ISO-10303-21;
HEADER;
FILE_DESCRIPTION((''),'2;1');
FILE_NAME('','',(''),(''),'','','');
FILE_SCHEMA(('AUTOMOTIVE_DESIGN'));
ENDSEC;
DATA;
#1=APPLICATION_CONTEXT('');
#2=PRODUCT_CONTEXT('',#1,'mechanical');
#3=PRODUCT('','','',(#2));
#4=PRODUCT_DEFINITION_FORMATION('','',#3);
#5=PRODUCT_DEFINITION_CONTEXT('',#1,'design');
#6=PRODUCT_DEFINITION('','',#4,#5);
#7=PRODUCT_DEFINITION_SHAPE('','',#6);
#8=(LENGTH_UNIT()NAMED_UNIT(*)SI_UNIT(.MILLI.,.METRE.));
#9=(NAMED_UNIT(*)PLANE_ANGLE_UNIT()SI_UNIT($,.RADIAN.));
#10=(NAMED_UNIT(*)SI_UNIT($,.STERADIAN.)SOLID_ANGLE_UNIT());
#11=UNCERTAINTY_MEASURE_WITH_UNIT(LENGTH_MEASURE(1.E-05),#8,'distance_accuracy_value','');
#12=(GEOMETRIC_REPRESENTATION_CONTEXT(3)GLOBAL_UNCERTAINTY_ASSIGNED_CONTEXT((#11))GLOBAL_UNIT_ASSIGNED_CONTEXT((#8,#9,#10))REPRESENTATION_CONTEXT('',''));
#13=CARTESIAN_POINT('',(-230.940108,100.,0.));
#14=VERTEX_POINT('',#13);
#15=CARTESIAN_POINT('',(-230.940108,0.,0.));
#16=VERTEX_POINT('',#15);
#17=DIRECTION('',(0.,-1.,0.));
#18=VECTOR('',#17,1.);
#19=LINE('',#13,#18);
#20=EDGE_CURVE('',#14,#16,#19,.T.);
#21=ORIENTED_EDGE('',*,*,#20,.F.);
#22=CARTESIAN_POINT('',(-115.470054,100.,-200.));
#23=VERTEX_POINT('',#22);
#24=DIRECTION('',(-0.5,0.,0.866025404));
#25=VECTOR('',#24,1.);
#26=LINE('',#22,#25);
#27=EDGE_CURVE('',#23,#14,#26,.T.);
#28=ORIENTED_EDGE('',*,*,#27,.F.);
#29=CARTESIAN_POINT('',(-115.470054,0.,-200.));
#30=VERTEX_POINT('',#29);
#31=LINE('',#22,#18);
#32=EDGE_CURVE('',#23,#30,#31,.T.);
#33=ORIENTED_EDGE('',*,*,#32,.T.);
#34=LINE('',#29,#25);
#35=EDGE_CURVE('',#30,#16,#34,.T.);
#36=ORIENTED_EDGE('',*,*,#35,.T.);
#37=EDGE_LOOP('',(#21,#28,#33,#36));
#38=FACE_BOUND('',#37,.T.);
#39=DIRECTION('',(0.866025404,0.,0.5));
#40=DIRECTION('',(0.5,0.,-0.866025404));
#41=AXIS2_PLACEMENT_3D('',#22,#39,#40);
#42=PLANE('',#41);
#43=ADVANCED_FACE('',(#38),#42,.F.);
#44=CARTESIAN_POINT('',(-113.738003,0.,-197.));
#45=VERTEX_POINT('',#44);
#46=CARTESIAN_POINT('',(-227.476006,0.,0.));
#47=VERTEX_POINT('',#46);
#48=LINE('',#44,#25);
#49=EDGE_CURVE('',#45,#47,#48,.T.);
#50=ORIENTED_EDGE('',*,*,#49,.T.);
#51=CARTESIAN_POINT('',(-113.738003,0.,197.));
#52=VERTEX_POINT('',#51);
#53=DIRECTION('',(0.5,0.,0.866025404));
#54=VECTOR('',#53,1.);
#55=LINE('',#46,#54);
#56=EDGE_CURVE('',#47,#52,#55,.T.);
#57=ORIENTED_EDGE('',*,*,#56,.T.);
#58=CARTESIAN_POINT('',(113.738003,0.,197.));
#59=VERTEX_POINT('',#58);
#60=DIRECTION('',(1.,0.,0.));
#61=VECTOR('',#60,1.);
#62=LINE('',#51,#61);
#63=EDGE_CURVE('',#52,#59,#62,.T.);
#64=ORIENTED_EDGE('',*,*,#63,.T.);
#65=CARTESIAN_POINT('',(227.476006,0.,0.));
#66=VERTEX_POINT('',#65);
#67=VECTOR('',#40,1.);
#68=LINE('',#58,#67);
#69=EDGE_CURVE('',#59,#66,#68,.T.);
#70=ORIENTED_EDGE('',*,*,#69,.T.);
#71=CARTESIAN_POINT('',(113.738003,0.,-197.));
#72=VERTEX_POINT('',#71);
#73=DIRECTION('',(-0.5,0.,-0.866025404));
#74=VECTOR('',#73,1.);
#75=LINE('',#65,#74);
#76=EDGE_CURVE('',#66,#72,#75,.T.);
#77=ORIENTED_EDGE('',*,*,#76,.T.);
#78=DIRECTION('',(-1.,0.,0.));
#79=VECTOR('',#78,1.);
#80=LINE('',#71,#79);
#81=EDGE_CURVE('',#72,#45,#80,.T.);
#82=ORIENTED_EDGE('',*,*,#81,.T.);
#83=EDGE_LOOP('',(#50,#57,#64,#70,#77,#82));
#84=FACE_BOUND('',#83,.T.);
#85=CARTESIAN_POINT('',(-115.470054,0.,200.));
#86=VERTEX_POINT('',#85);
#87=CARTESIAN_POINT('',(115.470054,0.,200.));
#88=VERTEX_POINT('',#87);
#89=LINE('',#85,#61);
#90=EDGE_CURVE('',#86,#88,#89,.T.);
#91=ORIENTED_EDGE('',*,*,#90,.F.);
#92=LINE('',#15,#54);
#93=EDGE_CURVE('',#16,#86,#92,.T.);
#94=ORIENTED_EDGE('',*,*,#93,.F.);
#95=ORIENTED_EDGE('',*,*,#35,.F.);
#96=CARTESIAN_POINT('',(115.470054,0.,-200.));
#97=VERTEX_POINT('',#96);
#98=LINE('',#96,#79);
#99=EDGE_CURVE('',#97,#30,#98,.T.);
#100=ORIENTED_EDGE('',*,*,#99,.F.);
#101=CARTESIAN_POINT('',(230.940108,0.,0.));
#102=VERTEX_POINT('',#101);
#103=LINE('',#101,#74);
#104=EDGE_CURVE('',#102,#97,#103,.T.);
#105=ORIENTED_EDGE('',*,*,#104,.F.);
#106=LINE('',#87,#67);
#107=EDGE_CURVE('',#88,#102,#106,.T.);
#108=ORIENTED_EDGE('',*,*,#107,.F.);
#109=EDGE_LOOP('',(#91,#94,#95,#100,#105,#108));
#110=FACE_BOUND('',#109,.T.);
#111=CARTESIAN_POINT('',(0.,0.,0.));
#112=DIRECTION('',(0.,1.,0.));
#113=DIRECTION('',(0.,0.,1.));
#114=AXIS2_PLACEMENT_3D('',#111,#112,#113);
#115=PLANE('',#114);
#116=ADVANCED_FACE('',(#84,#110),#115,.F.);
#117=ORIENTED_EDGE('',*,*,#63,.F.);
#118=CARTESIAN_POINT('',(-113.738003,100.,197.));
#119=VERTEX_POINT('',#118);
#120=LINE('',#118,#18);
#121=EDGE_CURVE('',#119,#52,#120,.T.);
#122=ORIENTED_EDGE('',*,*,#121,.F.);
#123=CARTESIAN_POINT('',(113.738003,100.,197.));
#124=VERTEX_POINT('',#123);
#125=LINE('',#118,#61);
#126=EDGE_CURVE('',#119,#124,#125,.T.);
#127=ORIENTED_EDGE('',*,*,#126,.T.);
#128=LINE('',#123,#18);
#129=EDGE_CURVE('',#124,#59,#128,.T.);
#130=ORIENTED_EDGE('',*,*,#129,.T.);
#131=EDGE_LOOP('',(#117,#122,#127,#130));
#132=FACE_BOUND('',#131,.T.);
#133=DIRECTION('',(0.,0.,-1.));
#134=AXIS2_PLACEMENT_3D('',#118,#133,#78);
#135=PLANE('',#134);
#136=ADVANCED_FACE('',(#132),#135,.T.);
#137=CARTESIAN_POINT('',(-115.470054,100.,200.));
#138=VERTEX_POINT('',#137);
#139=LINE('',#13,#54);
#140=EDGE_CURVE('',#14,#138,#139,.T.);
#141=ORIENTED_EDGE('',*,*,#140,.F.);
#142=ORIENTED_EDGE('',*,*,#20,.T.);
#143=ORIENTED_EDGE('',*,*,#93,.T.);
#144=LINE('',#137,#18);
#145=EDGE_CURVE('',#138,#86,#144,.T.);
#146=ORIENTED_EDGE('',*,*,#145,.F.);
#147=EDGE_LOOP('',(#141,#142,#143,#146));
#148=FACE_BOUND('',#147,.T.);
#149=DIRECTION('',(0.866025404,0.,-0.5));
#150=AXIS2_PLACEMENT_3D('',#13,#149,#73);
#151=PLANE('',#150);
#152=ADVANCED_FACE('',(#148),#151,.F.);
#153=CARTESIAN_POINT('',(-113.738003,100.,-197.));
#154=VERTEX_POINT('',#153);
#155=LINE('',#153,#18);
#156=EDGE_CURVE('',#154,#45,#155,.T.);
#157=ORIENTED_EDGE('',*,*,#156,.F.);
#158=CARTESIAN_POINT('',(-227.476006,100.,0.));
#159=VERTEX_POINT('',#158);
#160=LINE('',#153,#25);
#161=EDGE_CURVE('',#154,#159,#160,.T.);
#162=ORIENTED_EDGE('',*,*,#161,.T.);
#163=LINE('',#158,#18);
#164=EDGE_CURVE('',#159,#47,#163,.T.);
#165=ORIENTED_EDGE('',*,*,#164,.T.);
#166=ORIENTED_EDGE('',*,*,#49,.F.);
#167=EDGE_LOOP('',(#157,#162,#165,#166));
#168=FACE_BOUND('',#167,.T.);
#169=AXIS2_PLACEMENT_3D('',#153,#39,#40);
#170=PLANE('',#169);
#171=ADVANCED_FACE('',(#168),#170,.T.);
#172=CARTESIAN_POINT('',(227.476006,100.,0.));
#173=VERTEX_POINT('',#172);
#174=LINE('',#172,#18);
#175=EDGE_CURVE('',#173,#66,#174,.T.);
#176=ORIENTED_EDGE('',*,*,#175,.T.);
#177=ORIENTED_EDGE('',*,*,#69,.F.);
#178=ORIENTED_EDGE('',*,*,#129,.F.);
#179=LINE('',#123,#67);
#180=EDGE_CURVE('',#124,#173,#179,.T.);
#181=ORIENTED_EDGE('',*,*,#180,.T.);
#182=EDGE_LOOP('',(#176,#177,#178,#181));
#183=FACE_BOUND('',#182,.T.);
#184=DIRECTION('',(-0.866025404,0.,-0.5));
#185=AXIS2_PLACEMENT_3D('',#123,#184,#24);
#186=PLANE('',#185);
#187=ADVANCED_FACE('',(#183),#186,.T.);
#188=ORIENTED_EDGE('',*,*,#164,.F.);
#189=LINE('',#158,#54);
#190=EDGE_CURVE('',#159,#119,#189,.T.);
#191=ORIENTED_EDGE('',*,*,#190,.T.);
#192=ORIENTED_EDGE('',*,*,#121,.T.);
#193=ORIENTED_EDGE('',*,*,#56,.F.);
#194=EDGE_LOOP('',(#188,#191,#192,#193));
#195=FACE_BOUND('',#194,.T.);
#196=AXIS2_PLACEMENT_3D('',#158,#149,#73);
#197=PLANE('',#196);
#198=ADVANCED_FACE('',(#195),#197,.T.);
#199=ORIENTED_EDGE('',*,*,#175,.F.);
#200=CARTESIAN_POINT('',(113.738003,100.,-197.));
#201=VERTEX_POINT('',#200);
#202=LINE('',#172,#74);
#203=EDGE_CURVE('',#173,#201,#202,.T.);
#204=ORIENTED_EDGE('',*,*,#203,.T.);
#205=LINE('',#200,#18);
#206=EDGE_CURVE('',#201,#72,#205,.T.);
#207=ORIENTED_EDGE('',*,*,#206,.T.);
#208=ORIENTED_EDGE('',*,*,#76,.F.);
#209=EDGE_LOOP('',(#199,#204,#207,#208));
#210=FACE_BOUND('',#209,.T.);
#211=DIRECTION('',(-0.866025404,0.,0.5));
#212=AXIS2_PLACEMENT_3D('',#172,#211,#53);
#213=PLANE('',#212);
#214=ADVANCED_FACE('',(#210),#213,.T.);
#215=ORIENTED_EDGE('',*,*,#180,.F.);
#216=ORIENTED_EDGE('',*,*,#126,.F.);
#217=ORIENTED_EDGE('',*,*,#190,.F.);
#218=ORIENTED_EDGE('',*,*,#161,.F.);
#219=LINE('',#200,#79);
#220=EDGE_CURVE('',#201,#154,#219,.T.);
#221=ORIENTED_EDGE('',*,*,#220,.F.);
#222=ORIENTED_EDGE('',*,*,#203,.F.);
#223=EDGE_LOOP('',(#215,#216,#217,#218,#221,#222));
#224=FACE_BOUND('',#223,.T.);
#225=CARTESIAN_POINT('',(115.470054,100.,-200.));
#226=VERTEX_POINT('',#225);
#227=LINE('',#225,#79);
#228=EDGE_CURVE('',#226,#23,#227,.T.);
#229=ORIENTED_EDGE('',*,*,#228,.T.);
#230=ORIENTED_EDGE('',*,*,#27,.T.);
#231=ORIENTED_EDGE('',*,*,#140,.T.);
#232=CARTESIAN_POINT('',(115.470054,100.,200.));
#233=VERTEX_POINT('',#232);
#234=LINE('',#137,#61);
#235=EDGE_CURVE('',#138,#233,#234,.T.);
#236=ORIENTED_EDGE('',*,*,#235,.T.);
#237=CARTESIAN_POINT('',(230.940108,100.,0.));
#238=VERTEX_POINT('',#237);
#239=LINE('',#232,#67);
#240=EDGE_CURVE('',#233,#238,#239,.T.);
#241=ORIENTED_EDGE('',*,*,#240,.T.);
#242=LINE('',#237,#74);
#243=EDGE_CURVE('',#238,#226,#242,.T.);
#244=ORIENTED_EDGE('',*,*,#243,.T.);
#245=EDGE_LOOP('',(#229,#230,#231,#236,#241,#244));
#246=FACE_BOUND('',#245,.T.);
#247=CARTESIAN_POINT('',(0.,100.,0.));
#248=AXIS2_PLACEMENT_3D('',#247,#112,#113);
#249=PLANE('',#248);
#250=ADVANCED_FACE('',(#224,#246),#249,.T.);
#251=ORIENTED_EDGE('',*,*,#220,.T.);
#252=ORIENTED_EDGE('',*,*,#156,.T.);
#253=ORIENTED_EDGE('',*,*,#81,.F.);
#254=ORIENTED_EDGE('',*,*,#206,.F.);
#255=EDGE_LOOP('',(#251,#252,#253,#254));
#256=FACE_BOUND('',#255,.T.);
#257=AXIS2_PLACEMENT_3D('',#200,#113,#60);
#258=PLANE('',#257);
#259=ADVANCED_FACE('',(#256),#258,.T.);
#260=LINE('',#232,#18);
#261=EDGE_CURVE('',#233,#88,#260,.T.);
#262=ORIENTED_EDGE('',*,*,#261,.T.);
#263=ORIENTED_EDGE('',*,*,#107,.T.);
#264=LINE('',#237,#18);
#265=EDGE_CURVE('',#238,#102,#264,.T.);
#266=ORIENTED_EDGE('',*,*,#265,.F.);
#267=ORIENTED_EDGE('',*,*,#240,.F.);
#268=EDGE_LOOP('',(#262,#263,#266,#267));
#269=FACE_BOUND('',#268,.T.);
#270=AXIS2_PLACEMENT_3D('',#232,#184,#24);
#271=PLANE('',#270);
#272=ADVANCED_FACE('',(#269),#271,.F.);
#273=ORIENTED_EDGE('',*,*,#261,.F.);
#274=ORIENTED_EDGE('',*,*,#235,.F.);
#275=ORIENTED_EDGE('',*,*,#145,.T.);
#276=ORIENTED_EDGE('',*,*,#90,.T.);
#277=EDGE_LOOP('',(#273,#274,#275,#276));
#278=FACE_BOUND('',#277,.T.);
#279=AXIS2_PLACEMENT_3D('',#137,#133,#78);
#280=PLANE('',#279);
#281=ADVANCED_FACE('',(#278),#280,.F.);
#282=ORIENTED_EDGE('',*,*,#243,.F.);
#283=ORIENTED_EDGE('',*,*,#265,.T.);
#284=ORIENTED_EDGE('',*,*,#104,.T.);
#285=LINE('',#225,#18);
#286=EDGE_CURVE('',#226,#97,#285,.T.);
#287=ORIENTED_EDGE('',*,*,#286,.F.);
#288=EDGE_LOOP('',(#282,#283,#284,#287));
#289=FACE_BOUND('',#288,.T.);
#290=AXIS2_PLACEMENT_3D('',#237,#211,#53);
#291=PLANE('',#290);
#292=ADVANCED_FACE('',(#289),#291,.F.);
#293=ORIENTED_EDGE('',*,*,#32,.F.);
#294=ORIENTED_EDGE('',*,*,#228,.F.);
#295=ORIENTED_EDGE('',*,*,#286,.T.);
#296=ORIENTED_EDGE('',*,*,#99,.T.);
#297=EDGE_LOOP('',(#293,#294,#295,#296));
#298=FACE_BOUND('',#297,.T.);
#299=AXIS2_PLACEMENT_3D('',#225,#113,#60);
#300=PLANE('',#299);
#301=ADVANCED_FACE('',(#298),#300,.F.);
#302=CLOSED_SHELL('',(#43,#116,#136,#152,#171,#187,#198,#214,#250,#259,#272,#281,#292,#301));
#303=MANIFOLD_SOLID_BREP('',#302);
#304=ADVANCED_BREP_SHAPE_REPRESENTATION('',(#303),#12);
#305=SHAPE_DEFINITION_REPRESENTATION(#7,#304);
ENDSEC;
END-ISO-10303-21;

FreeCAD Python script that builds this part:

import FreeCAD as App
import Part
import Sketcher

V = App.Vector
Q = App.Units.Quantity

doc = App.newDocument("Part")
body = doc.addObject("PartDesign::Body", "Body")

# Sketch on XZ plane
sketch1 = doc.addObject("Sketcher::SketchObject", "Sketch")
body.addObject(sketch1)
sketch1.AttachmentSupport = (doc.XZ_Plane, [""])
sketch1.MapMode = "FlatFace"
sketch1.addGeometry([
    Part.LineSegment(V(-115, 200, 0), V(115, 200, 0)),  # 0
    Part.LineSegment(V(115, 200, 0), V(231, 0, 0)),  # 1
    Part.LineSegment(V(231, 0, 0), V(115, -200, 0)),  # 2
    Part.LineSegment(V(115, -200, 0), V(-115, -200, 0)),  # 3
    Part.LineSegment(V(-115, -200, 0), V(-231, 0, 0)),  # 4
    Part.LineSegment(V(-231, 0, 0), V(-115, 200, 0)),  # 5
    Part.LineSegment(V(227, 0, 0), V(114, 197, 0)),  # 6
    Part.LineSegment(V(114, 197, 0), V(-114, 197, 0)),  # 7
    Part.LineSegment(V(-114, 197, 0), V(-227, 0, 0)),  # 8
    Part.LineSegment(V(-227, 0, 0), V(-114, -197, 0)),  # 9
    Part.LineSegment(V(-114, -197, 0), V(114, -197, 0)),  # 10
    Part.LineSegment(V(114, -197, 0), V(227, 0, 0)),  # 11
], False)
sketch1.addConstraint([
    Sketcher.Constraint("Coincident", 0, 2, 1, 1),
    Sketcher.Constraint("Coincident", 1, 2, 2, 1),
    Sketcher.Constraint("Coincident", 2, 2, 3, 1),
    Sketcher.Constraint("Coincident", 3, 2, 4, 1),
    Sketcher.Constraint("Coincident", 4, 2, 5, 1),
    Sketcher.Constraint("Coincident", 5, 2, 0, 1),
    Sketcher.Constraint("Coincident", 6, 2, 7, 1),
    Sketcher.Constraint("Coincident", 7, 2, 8, 1),
    Sketcher.Constraint("Coincident", 8, 2, 9, 1),
    Sketcher.Constraint("Coincident", 9, 2, 10, 1),
    Sketcher.Constraint("Coincident", 10, 2, 11, 1),
    Sketcher.Constraint("Coincident", 11, 2, 6, 1),
    Sketcher.Constraint("Horizontal", 0),
    Sketcher.Constraint("Horizontal", 3),
    Sketcher.Constraint("Horizontal", 7),
    Sketcher.Constraint("Horizontal", 10),
    Sketcher.Constraint("Symmetric", 0, 2, 3, 2, -1, 1),
    Sketcher.Constraint("Symmetric", 1, 2, 4, 2, -1, 1),
    Sketcher.Constraint("Symmetric", 6, 2, 9, 2, -1, 1),
    Sketcher.Constraint("Symmetric", 8, 2, 11, 2, -1, 1),
    Sketcher.Constraint("PointOnObject", 1, 2, -1),
    Sketcher.Constraint("PointOnObject", 8, 2, -1),
    Sketcher.Constraint("Parallel", 2, 5),
    Sketcher.Constraint("Parallel", 4, 6),
    Sketcher.Constraint("Parallel", 5, 8),
    Sketcher.Constraint("Parallel", 8, 11),
    Sketcher.Constraint("Vertical", 0, 2, 2, 2),
    Sketcher.Constraint("Angle", 1, Q("-60 deg")),
    Sketcher.Constraint("DistanceY", -1, 1, 0, 2, Q("200 mm")),
    Sketcher.Constraint("DistanceY", -1, 1, 6, 2, Q("197 mm")),
    Sketcher.Constraint("DistanceX", 4, 2, 8, 2, Q("3.464102 mm")),
    Sketcher.Constraint("DistanceX", 0, 1, 0, 2, Q("230.940108 mm")),
])
pad1 = doc.addObject("PartDesign::Pad", "Pad")
body.addObject(pad1)
pad1.Profile = sketch1
pad1.Length = 100
pad1.Reversed = True

doc.recompute()
